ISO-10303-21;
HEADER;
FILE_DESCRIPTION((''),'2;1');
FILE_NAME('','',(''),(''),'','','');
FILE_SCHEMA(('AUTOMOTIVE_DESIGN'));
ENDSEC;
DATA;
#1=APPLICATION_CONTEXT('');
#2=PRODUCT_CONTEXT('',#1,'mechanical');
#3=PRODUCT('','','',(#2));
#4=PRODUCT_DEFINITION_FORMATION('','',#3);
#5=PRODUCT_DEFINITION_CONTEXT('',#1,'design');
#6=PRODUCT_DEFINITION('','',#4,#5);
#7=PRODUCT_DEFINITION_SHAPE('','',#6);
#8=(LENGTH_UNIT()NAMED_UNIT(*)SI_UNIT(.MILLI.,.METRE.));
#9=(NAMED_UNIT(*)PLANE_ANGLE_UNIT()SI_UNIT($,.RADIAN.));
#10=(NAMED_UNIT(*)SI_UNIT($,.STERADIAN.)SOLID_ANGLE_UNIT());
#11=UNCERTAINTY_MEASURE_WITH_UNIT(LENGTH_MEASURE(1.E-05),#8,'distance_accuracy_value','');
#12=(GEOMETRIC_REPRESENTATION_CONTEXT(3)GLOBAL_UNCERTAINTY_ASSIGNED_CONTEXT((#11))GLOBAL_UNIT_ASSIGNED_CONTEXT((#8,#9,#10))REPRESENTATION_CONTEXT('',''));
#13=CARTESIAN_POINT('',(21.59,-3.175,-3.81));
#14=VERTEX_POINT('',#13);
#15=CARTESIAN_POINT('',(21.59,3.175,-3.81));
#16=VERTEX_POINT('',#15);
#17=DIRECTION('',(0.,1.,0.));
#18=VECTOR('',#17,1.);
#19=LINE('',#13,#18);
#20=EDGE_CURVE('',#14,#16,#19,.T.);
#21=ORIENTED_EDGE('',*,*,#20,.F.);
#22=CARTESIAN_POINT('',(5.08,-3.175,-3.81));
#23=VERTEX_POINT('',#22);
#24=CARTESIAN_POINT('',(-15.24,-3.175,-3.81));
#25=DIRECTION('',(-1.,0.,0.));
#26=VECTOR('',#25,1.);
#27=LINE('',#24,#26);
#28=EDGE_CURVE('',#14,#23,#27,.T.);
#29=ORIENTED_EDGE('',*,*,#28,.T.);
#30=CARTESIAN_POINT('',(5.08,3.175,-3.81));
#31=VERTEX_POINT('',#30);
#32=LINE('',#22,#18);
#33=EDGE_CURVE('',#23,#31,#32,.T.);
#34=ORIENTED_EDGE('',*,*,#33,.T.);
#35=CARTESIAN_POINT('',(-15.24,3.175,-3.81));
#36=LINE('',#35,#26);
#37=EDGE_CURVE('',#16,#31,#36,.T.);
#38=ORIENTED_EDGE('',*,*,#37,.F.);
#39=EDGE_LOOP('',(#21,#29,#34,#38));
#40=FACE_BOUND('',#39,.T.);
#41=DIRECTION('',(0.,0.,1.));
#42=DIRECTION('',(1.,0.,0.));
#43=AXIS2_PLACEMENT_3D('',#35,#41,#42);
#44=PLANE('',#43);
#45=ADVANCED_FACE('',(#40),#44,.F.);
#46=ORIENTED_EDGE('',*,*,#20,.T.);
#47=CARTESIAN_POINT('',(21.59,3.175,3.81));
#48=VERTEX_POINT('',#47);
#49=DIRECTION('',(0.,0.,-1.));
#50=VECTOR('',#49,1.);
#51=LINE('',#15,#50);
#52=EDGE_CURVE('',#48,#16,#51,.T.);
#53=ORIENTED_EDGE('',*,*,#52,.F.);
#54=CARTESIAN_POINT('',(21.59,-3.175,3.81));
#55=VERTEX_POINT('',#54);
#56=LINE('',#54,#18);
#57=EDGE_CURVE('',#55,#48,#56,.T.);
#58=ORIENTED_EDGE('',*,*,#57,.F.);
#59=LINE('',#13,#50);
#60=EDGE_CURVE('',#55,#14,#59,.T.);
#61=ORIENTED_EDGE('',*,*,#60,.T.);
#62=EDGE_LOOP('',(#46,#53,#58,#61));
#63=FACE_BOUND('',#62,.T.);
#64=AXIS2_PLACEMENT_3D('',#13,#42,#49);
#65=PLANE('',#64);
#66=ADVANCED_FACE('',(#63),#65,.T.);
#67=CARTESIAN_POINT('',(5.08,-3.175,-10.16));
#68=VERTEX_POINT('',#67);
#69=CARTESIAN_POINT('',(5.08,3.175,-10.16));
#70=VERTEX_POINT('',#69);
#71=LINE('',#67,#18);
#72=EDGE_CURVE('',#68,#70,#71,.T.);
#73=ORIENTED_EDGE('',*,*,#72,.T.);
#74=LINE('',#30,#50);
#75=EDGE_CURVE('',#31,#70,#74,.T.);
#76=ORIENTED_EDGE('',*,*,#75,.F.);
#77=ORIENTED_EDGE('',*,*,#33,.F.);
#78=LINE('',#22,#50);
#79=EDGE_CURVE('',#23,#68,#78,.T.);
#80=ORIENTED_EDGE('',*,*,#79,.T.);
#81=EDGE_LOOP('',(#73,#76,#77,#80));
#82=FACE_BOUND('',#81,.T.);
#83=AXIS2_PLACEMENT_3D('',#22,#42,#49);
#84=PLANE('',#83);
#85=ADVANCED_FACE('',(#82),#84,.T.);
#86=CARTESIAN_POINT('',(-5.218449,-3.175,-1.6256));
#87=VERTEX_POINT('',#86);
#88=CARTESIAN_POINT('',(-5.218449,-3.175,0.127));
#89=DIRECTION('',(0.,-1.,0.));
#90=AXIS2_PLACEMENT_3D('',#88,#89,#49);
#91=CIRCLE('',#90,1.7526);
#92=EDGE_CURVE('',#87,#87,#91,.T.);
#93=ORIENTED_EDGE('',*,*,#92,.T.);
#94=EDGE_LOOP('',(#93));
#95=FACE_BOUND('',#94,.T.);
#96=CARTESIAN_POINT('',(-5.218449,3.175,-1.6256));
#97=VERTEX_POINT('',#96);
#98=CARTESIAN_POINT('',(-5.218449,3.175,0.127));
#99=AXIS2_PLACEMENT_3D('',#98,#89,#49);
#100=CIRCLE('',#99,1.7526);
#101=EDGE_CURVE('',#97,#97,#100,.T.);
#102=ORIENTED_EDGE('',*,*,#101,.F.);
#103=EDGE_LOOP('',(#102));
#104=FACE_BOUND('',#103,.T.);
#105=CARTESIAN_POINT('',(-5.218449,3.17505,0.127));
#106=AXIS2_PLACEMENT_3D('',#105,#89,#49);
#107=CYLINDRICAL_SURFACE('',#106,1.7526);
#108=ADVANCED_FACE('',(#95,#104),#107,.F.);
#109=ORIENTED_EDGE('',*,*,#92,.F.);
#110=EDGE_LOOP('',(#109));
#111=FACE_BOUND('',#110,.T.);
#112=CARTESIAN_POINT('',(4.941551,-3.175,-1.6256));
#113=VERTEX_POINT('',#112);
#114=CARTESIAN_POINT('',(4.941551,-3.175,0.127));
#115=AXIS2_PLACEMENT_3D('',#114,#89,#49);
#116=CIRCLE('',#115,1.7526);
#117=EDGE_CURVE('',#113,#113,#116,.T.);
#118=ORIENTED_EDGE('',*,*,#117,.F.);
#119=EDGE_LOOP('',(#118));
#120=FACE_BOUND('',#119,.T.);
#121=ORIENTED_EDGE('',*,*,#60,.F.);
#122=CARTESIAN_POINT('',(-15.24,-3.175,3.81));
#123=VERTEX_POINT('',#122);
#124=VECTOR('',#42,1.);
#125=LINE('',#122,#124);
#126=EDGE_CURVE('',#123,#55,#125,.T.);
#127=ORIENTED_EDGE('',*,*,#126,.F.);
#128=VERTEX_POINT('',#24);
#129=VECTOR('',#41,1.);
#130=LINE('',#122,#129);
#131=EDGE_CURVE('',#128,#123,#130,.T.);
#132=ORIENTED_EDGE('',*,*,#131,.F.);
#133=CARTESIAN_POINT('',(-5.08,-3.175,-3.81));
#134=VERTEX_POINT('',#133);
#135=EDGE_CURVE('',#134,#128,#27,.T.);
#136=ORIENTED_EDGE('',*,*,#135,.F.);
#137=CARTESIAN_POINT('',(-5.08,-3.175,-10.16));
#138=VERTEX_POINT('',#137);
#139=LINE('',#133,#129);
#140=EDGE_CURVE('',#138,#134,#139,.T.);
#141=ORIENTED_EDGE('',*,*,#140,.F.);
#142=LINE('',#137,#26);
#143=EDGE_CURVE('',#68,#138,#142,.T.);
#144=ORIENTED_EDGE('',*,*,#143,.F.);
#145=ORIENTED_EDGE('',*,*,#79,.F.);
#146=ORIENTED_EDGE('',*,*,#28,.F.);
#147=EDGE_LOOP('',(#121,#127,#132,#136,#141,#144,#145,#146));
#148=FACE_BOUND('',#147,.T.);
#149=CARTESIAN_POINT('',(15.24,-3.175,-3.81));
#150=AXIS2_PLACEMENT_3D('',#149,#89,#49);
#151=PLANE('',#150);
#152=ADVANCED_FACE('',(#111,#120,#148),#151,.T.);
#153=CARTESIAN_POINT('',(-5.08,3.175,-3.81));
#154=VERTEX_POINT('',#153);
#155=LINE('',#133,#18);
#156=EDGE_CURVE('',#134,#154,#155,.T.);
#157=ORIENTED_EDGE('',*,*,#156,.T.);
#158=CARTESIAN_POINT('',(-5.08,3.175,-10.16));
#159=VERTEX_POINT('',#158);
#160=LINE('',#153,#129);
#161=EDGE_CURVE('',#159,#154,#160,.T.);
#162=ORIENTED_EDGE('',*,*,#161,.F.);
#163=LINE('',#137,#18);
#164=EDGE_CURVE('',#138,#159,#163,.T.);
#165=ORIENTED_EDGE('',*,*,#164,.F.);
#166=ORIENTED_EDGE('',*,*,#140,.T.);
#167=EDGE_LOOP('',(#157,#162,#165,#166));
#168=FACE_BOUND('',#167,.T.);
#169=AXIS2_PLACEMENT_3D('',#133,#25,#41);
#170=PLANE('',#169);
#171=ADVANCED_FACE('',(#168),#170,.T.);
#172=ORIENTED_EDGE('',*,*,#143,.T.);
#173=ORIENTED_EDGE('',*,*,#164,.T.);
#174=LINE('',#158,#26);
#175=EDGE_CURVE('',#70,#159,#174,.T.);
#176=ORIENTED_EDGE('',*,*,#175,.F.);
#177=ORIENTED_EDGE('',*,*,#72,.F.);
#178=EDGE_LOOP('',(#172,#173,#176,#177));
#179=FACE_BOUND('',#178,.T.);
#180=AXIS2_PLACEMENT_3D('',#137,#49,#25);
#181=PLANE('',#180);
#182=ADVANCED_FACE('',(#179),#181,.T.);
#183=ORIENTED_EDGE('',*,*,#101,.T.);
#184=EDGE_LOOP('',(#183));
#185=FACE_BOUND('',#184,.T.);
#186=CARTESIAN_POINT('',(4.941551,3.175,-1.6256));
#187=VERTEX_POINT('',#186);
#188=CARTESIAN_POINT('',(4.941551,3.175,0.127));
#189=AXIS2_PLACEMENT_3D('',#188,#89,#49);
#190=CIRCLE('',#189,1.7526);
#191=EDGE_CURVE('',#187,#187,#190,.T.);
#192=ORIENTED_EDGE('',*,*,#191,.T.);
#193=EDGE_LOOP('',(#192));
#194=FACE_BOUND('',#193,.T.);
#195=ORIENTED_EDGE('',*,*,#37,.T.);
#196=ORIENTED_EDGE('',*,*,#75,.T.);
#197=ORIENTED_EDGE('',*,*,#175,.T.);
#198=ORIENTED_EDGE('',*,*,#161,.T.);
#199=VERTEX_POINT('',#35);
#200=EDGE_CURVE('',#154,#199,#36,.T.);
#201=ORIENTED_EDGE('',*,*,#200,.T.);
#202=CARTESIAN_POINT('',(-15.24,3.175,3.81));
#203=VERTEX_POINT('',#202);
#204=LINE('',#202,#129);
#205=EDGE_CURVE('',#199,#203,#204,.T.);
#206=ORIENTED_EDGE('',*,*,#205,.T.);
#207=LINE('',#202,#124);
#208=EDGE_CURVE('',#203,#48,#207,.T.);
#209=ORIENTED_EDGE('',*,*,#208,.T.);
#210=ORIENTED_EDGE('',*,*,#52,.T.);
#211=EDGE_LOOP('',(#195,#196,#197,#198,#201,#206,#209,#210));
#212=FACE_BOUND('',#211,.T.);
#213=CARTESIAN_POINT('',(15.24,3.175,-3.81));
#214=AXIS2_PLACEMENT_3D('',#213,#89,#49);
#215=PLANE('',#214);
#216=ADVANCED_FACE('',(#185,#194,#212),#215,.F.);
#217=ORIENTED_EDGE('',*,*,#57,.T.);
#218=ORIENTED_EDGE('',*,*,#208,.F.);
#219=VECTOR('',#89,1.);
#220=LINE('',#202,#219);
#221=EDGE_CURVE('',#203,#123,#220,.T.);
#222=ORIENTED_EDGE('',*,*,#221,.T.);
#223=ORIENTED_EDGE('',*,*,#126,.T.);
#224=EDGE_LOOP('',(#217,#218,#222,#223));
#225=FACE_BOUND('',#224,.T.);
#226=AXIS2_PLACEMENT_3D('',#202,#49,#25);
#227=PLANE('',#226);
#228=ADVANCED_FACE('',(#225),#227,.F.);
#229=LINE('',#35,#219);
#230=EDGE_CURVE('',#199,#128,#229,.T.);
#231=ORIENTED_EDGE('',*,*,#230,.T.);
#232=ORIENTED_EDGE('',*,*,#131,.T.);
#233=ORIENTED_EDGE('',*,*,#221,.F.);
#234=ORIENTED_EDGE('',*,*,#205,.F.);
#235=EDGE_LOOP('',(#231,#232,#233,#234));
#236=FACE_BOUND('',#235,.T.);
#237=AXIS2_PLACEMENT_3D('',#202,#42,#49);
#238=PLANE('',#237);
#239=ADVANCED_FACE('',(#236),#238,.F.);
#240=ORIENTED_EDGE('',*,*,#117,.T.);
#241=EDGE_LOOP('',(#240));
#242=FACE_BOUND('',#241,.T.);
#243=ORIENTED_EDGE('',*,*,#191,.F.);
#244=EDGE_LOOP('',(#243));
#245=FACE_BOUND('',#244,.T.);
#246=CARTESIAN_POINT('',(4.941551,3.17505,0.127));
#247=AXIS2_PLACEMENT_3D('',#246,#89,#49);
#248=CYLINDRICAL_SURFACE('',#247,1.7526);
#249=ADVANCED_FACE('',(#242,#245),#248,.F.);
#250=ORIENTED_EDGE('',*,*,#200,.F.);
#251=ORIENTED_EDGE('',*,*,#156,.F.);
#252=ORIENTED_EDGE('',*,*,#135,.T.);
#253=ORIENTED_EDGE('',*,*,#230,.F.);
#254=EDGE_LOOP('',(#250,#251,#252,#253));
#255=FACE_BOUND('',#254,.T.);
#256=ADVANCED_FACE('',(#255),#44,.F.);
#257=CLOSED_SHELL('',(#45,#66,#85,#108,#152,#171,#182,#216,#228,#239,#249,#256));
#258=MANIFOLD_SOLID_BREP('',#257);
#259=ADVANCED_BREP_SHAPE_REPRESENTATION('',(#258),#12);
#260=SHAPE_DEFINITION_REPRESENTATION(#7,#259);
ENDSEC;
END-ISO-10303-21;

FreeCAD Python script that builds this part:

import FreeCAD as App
import Part
import Sketcher
Q = App.Units.Quantity

doc = App.newDocument("Part")
params = doc.addObject("Spreadsheet::Sheet", "Params")
for row, (alias, value) in enumerate([
    ("sketch1_width", "1.2 in"),
    ("sketch1_height", "0.3 in"),
    ("pad1_length", "0.25 in"),
    ("sketch2_width", "0.4 in"),
    ("sketch2_height", "0.25 in"),
    ("pad2_length", "0.25 in"),
    ("sketch3_height", "0.3 in"),
    ("sketch3_width", "0.25 in"),
    ("pad3_length", "0.25 in"),
    ("sketch4_diameter", "0.138 in"),
], start=1):
    params.set(f"A{row}", alias)
    params.set(f"B{row}", "=" + value)
    params.setAlias(f"B{row}", alias)

body = doc.addObject("PartDesign::Body", "Body")

# Sketch on XZ plane
sketch1 = body.newObject("Sketcher::SketchObject", "Sketch")
sketch1.AttachmentSupport = (doc.getObject("XZ_Plane"), [""])
sketch1.MapMode = "FlatFace"
sketch1.addGeometry(Part.LineSegment(App.Vector(-15, -4, 0), App.Vector(-15, 4, 0)), False)
sketch1.addGeometry(Part.LineSegment(App.Vector(-15, 4, 0), App.Vector(15, 4, 0)), False)
sketch1.addGeometry(Part.LineSegment(App.Vector(15, 4, 0), App.Vector(15, -4, 0)), False)
sketch1.addGeometry(Part.LineSegment(App.Vector(15, -4, 0), App.Vector(-15, -4, 0)), False)
sketch1.addConstraint(Sketcher.Constraint("Coincident", 0, 2, 1, 1))
sketch1.addConstraint(Sketcher.Constraint("Coincident", 1, 2, 2, 1))
sketch1.addConstraint(Sketcher.Constraint("Coincident", 2, 2, 3, 1))
sketch1.addConstraint(Sketcher.Constraint("Coincident", 3, 2, 0, 1))
sketch1.addConstraint(Sketcher.Constraint("Vertical", 0))
sketch1.addConstraint(Sketcher.Constraint("Horizontal", 1))
sketch1.addConstraint(Sketcher.Constraint("Vertical", 2))
sketch1.addConstraint(Sketcher.Constraint("Horizontal", 3))
sketch1.addConstraint(Sketcher.Constraint("Symmetric", 0, 2, 2, 2, -1, 1))
sketch1.addConstraint(Sketcher.Constraint("DistanceX", 1, 1, 1, 2, Q("1.2 in")))
sketch1.addConstraint(Sketcher.Constraint("DistanceY", 0, 1, 0, 2, Q("0.3 in")))
sketch1.setExpression("Constraints[9]", "Params.sketch1_width")
sketch1.setExpression("Constraints[10]", "Params.sketch1_height")
pad1 = body.newObject("PartDesign::Pad", "Pad")
pad1.Profile = sketch1
pad1.setExpression("Length", "Params.pad1_length")
pad1.Midplane = True

# Sketch on XZ plane
sketch2 = body.newObject("Sketcher::SketchObject", "Sketch001")
sketch2.AttachmentSupport = (doc.getObject("XZ_Plane"), [""])
sketch2.MapMode = "FlatFace"
sketch2.AttachmentOffset = App.Placement(App.Vector(0, 0, -0.125 * 25.4), App.Rotation())
sketch2.addGeometry(Part.LineSegment(App.Vector(-5, -10, 0), App.Vector(-5, -4, 0)), False)
sketch2.addGeometry(Part.LineSegment(App.Vector(-5, -4, 0), App.Vector(5, -4, 0)), False)
sketch2.addGeometry(Part.LineSegment(App.Vector(5, -4, 0), App.Vector(5, -10, 0)), False)
sketch2.addGeometry(Part.LineSegment(App.Vector(5, -10, 0), App.Vector(-5, -10, 0)), False)
sketch2.addConstraint(Sketcher.Constraint("Coincident", 0, 2, 1, 1))
sketch2.addConstraint(Sketcher.Constraint("Coincident", 1, 2, 2, 1))
sketch2.addConstraint(Sketcher.Constraint("Coincident", 2, 2, 3, 1))
sketch2.addConstraint(Sketcher.Constraint("Coincident", 3, 2, 0, 1))
sketch2.addConstraint(Sketcher.Constraint("Vertical", 0))
sketch2.addConstraint(Sketcher.Constraint("Horizontal", 1))
sketch2.addConstraint(Sketcher.Constraint("Vertical", 2))
sketch2.addConstraint(Sketcher.Constraint("Horizontal", 3))
sketch2.addConstraint(Sketcher.Constraint("DistanceX", 1, 1, 1, 2, Q("0.4 in")))
sketch2.addConstraint(Sketcher.Constraint("DistanceY", 0, 1, 0, 2, Q("0.25 in")))
sketch2.addConstraint(Sketcher.Constraint("DistanceX", 0, 2, -1, 1, Q("0.2 in")))
sketch2.addConstraint(Sketcher.Constraint("DistanceY", 2, 2, -1, 1, Q("0.4 in")))
sketch2.setExpression("Constraints[8]", "Params.sketch2_width")
sketch2.setExpression("Constraints[9]", "Params.sketch2_height")
pad2 = body.newObject("PartDesign::Pad", "Pad001")
pad2.Profile = sketch2
pad2.setExpression("Length", "Params.pad2_length")

# Sketch on XZ plane
sketch3 = body.newObject("Sketcher::SketchObject", "Sketch002")
sketch3.AttachmentSupport = (doc.getObject("XZ_Plane"), [""])
sketch3.MapMode = "FlatFace"
sketch3.AttachmentOffset = App.Placement(App.Vector(0, 0, -0.125 * 25.4), App.Rotation())
sketch3.addGeometry(Part.LineSegment(App.Vector(15, -4, 0), App.Vector(15, 4, 0)), False)
sketch3.addGeometry(Part.LineSegment(App.Vector(15, 4, 0), App.Vector(22, 4, 0)), False)
sketch3.addGeometry(Part.LineSegment(App.Vector(22, 4, 0), App.Vector(22, -4, 0)), False)
sketch3.addGeometry(Part.LineSegment(App.Vector(22, -4, 0), App.Vector(15, -4, 0)), False)
sketch3.addConstraint(Sketcher.Constraint("Coincident", 0, 2, 1, 1))
sketch3.addConstraint(Sketcher.Constraint("Coincident", 1, 2, 2, 1))
sketch3.addConstraint(Sketcher.Constraint("Coincident", 2, 2, 3, 1))
sketch3.addConstraint(Sketcher.Constraint("Coincident", 3, 2, 0, 1))
sketch3.addConstraint(Sketcher.Constraint("Vertical", 0))
sketch3.addConstraint(Sketcher.Constraint("Horizontal", 1))
sketch3.addConstraint(Sketcher.Constraint("Vertical", 2))
sketch3.addConstraint(Sketcher.Constraint("Horizontal", 3))
sketch3.addConstraint(Sketcher.Constraint("DistanceY", 0, 1, 0, 2, Q("0.3 in")))
sketch3.addConstraint(Sketcher.Constraint("DistanceX", 1, 1, 1, 2, Q("0.25 in")))
sketch3.addConstraint(Sketcher.Constraint("DistanceX", -1, 1, 0, 2, Q("0.6 in")))
sketch3.addConstraint(Sketcher.Constraint("DistanceY", -1, 1, 0, 2, Q("0.15 in")))
sketch3.setExpression("Constraints[8]", "Params.sketch3_height")
sketch3.setExpression("Constraints[9]", "Params.sketch3_width")
pad3 = body.newObject("PartDesign::Pad", "Pad002")
pad3.Profile = sketch3
pad3.setExpression("Length", "Params.pad3_length")

# Sketch on XZ plane
sketch4 = body.newObject("Sketcher::SketchObject", "Sketch003")
sketch4.AttachmentSupport = (doc.getObject("XZ_Plane"), [""])
sketch4.MapMode = "FlatFace"
sketch4.AttachmentOffset = App.Placement(App.Vector(0, 0, 0.125 * 25.4), App.Rotation())
sketch4.addGeometry(Part.Circle(App.Vector(4.9, 0.1, 0), App.Vector(0, 0, 1), 1.8), False)
sketch4.addGeometry(Part.Circle(App.Vector(-5.2, 0.1, 0), App.Vector(0, 0, 1), 1.8), False)
sketch4.addConstraint(Sketcher.Constraint("Equal", 0, 1))
sketch4.addConstraint(Sketcher.Constraint("Horizontal", 0, 3, 1, 3))
sketch4.addConstraint(Sketcher.Constraint("Diameter", 0, Q("0.138 in")))
sketch4.addConstraint(Sketcher.Constraint("DistanceX", 1, 3, 0, 3, Q("0.4 in")))
sketch4.addConstraint(Sketcher.Constraint("DistanceY", -1, 1, 0, 3, Q("0.005 in")))
sketch4.addConstraint(Sketcher.Constraint("DistanceX", -1, 1, 0, 3, Q("4.941551 mm")))
sketch4.setExpression("Constraints[2]", "Params.sketch4_diameter")
pocket1 = body.newObject("PartDesign::Pocket", "Pocket")
pocket1.Profile = sketch4
pocket1.Type = "ThroughAll"

doc.recompute()
